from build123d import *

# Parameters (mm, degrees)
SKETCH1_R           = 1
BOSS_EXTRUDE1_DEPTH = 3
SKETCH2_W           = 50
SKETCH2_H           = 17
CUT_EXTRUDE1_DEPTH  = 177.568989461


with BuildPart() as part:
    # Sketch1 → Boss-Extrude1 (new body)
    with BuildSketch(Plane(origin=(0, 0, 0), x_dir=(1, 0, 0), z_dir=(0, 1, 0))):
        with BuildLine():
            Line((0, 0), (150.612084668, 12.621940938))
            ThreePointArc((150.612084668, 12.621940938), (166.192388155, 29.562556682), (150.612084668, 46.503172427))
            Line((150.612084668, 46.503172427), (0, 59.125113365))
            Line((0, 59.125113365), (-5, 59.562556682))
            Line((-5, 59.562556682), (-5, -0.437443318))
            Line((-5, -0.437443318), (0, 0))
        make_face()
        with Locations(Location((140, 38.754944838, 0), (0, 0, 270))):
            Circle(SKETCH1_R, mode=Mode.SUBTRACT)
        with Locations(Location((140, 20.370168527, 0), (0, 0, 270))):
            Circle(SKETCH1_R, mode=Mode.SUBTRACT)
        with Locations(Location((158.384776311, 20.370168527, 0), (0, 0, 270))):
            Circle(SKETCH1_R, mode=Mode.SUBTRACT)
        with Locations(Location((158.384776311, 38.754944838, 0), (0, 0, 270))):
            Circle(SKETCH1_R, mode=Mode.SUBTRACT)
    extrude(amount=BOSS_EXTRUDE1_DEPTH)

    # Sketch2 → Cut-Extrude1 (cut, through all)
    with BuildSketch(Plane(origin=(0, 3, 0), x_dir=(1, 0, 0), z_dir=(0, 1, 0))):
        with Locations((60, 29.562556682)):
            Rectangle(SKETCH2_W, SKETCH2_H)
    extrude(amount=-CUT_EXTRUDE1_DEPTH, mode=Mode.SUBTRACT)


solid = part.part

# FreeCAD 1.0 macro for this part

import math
import FreeCAD as App
import Part
import Sketcher
from FreeCAD import Vector
Q = App.Units.Quantity


def add_polygon(sketch, points):
    """Adds a closed chain of lines whose ends are joined by coincident constraints."""
    first, n = sketch.GeometryCount, len(points)
    for a, b in zip(points, points[1:] + points[:1]):
        sketch.addGeometry(Part.LineSegment(App.Vector(*a, 0), App.Vector(*b, 0)), False)
    for i in range(n):
        sketch.addConstraint(Sketcher.Constraint("Coincident", first + i, 2, first + (i + 1) % n, 1))

doc = App.newDocument("Part")
body = doc.addObject("PartDesign::Body", "Body")

# Sketch on XZ plane
sketch1 = body.newObject("Sketcher::SketchObject", "Sketch")
sketch1.AttachmentSupport = (doc.getObject("XZ_Plane"), [""])
sketch1.MapMode = "FlatFace"
sketch1.addGeometry(Part.LineSegment(Vector(0, 0, 0), Vector(150.612085, -12.621941, 0)), False)
sketch1.addGeometry(Part.ArcOfCircle(Part.Circle(Vector(149.192388, -29.562557, 0), Vector(0, 0, 1), 17), math.radians(-85.209561), math.radians(85.209561)), False)
sketch1.addGeometry(Part.LineSegment(Vector(150.612085, -46.503172, 0), Vector(0, -59.125113, 0)), False)
sketch1.addGeometry(Part.LineSegment(Vector(0, -59.125113, 0), Vector(-5, -59.562557, 0)), False)
sketch1.addGeometry(Part.LineSegment(Vector(-5, -59.562557, 0), Vector(-5, 0.437443, 0)), False)
sketch1.addGeometry(Part.LineSegment(Vector(-5, 0.437443, 0), Vector(0, 0, 0)), False)
sketch1.addGeometry(Part.Circle(Vector(140, -20.370169, 0), Vector(0, 0, 1), 1), False)
sketch1.addGeometry(Part.Circle(Vector(158.384776, -20.370169, 0), Vector(0, 0, 1), 1), False)
sketch1.addGeometry(Part.Circle(Vector(140, -38.754945, 0), Vector(0, 0, 1), 1), False)
sketch1.addGeometry(Part.Circle(Vector(158.384776, -38.754945, 0), Vector(0, 0, 1), 1), False)
sketch1.addConstraint(Sketcher.Constraint("Tangent", 0, 2, 1, 2))
sketch1.addConstraint(Sketcher.Constraint("Tangent", 1, 1, 2, 1))
sketch1.addConstraint(Sketcher.Constraint("Coincident", 2, 2, 3, 1))
sketch1.addConstraint(Sketcher.Constraint("Coincident", 3, 2, 4, 1))
sketch1.addConstraint(Sketcher.Constraint("Coincident", 4, 2, 5, 1))
sketch1.addConstraint(Sketcher.Constraint("Coincident", 5, 2, 0, 1))
sketch1.addConstraint(Sketcher.Constraint("Vertical", 4))
sketch1.addConstraint(Sketcher.Constraint("Coincident", 5, 2, -1, 1))
sketch1.addConstraint(Sketcher.Constraint("Equal", 6, 7))
sketch1.addConstraint(Sketcher.Constraint("Equal", 7, 8))
sketch1.addConstraint(Sketcher.Constraint("Equal", 8, 9))
sketch1.addConstraint(Sketcher.Constraint("PointOnObject", 2, 2, -2))
sketch1.addConstraint(Sketcher.Constraint("Horizontal", 6, 3, 7, 3))
sketch1.addConstraint(Sketcher.Constraint("Horizontal", 8, 3, 9, 3))
sketch1.addConstraint(Sketcher.Constraint("Vertical", 6, 3, 8, 3))
sketch1.addConstraint(Sketcher.Constraint("Vertical", 7, 3, 9, 3))
sketch1.addConstraint(Sketcher.Constraint("Vertical", 0, 2, 1, 1))
sketch1.addConstraint(Sketcher.Constraint("Equal", 3, 5))
sketch1.addConstraint(Sketcher.Constraint("Diameter", 6, 2.0))
sketch1.addConstraint(Sketcher.Constraint("Radius", 1, 17.0))
sketch1.addConstraint(Sketcher.Constraint("DistanceY", 4, 1, 4, 2, 60.0))
sketch1.addConstraint(Sketcher.Constraint("Angle", 3, Q("-175 deg")))
sketch1.addConstraint(Sketcher.Constraint("DistanceX", -1, 1, 6, 3, 140.0))
sketch1.addConstraint(Sketcher.Constraint("DistanceX", 3, 2, -1, 1, 5.0))
sketch1.addConstraint(Sketcher.Constraint("DistanceX", -1, 1, 1, 3, 149.192388))
sketch1.addConstraint(Sketcher.Constraint("DistanceY", 6, 3, -1, 1, 20.370169))
sketch1.addConstraint(Sketcher.Constraint("DistanceX", 1, 3, 7, 3, 9.192388))
sketch1.addConstraint(Sketcher.Constraint("DistanceY", 8, 3, 1, 3, 9.192388))
pad1 = body.newObject("PartDesign::Pad", "Pad")
pad1.Profile = sketch1
pad1.Length = 3
pad1.Reversed = True

# Sketch on XZ plane
sketch2 = body.newObject("Sketcher::SketchObject", "Sketch001")
sketch2.AttachmentSupport = (doc.getObject("XZ_Plane"), [""])
sketch2.MapMode = "FlatFace"
sketch2.AttachmentOffset = App.Placement(Vector(0, 0, -3), App.Rotation())
add_polygon(sketch2, [(35, -38.062557), (35, -21.062557), (85, -21.062557), (85, -38.062557)])  # lines 0-3
sketch2.addConstraint(Sketcher.Constraint("Vertical", 0))
sketch2.addConstraint(Sketcher.Constraint("Horizontal", 1))
sketch2.addConstraint(Sketcher.Constraint("Vertical", 2))
sketch2.addConstraint(Sketcher.Constraint("Horizontal", 3))
sketch2.addConstraint(Sketcher.Constraint("DistanceX", 1, 1, 1, 2, 50.0))
sketch2.addConstraint(Sketcher.Constraint("DistanceY", 0, 1, 0, 2, 17.0))
sketch2.addConstraint(Sketcher.Constraint("DistanceX", -1, 1, 0, 2, 35.0))
sketch2.addConstraint(Sketcher.Constraint("DistanceY", 0, 2, -1, 1, 21.062557))
pocket1 = body.newObject("PartDesign::Pocket", "Pocket")
pocket1.Profile = sketch2
pocket1.Type = "ThroughAll"
pocket1.Reversed = True

doc.recompute()
